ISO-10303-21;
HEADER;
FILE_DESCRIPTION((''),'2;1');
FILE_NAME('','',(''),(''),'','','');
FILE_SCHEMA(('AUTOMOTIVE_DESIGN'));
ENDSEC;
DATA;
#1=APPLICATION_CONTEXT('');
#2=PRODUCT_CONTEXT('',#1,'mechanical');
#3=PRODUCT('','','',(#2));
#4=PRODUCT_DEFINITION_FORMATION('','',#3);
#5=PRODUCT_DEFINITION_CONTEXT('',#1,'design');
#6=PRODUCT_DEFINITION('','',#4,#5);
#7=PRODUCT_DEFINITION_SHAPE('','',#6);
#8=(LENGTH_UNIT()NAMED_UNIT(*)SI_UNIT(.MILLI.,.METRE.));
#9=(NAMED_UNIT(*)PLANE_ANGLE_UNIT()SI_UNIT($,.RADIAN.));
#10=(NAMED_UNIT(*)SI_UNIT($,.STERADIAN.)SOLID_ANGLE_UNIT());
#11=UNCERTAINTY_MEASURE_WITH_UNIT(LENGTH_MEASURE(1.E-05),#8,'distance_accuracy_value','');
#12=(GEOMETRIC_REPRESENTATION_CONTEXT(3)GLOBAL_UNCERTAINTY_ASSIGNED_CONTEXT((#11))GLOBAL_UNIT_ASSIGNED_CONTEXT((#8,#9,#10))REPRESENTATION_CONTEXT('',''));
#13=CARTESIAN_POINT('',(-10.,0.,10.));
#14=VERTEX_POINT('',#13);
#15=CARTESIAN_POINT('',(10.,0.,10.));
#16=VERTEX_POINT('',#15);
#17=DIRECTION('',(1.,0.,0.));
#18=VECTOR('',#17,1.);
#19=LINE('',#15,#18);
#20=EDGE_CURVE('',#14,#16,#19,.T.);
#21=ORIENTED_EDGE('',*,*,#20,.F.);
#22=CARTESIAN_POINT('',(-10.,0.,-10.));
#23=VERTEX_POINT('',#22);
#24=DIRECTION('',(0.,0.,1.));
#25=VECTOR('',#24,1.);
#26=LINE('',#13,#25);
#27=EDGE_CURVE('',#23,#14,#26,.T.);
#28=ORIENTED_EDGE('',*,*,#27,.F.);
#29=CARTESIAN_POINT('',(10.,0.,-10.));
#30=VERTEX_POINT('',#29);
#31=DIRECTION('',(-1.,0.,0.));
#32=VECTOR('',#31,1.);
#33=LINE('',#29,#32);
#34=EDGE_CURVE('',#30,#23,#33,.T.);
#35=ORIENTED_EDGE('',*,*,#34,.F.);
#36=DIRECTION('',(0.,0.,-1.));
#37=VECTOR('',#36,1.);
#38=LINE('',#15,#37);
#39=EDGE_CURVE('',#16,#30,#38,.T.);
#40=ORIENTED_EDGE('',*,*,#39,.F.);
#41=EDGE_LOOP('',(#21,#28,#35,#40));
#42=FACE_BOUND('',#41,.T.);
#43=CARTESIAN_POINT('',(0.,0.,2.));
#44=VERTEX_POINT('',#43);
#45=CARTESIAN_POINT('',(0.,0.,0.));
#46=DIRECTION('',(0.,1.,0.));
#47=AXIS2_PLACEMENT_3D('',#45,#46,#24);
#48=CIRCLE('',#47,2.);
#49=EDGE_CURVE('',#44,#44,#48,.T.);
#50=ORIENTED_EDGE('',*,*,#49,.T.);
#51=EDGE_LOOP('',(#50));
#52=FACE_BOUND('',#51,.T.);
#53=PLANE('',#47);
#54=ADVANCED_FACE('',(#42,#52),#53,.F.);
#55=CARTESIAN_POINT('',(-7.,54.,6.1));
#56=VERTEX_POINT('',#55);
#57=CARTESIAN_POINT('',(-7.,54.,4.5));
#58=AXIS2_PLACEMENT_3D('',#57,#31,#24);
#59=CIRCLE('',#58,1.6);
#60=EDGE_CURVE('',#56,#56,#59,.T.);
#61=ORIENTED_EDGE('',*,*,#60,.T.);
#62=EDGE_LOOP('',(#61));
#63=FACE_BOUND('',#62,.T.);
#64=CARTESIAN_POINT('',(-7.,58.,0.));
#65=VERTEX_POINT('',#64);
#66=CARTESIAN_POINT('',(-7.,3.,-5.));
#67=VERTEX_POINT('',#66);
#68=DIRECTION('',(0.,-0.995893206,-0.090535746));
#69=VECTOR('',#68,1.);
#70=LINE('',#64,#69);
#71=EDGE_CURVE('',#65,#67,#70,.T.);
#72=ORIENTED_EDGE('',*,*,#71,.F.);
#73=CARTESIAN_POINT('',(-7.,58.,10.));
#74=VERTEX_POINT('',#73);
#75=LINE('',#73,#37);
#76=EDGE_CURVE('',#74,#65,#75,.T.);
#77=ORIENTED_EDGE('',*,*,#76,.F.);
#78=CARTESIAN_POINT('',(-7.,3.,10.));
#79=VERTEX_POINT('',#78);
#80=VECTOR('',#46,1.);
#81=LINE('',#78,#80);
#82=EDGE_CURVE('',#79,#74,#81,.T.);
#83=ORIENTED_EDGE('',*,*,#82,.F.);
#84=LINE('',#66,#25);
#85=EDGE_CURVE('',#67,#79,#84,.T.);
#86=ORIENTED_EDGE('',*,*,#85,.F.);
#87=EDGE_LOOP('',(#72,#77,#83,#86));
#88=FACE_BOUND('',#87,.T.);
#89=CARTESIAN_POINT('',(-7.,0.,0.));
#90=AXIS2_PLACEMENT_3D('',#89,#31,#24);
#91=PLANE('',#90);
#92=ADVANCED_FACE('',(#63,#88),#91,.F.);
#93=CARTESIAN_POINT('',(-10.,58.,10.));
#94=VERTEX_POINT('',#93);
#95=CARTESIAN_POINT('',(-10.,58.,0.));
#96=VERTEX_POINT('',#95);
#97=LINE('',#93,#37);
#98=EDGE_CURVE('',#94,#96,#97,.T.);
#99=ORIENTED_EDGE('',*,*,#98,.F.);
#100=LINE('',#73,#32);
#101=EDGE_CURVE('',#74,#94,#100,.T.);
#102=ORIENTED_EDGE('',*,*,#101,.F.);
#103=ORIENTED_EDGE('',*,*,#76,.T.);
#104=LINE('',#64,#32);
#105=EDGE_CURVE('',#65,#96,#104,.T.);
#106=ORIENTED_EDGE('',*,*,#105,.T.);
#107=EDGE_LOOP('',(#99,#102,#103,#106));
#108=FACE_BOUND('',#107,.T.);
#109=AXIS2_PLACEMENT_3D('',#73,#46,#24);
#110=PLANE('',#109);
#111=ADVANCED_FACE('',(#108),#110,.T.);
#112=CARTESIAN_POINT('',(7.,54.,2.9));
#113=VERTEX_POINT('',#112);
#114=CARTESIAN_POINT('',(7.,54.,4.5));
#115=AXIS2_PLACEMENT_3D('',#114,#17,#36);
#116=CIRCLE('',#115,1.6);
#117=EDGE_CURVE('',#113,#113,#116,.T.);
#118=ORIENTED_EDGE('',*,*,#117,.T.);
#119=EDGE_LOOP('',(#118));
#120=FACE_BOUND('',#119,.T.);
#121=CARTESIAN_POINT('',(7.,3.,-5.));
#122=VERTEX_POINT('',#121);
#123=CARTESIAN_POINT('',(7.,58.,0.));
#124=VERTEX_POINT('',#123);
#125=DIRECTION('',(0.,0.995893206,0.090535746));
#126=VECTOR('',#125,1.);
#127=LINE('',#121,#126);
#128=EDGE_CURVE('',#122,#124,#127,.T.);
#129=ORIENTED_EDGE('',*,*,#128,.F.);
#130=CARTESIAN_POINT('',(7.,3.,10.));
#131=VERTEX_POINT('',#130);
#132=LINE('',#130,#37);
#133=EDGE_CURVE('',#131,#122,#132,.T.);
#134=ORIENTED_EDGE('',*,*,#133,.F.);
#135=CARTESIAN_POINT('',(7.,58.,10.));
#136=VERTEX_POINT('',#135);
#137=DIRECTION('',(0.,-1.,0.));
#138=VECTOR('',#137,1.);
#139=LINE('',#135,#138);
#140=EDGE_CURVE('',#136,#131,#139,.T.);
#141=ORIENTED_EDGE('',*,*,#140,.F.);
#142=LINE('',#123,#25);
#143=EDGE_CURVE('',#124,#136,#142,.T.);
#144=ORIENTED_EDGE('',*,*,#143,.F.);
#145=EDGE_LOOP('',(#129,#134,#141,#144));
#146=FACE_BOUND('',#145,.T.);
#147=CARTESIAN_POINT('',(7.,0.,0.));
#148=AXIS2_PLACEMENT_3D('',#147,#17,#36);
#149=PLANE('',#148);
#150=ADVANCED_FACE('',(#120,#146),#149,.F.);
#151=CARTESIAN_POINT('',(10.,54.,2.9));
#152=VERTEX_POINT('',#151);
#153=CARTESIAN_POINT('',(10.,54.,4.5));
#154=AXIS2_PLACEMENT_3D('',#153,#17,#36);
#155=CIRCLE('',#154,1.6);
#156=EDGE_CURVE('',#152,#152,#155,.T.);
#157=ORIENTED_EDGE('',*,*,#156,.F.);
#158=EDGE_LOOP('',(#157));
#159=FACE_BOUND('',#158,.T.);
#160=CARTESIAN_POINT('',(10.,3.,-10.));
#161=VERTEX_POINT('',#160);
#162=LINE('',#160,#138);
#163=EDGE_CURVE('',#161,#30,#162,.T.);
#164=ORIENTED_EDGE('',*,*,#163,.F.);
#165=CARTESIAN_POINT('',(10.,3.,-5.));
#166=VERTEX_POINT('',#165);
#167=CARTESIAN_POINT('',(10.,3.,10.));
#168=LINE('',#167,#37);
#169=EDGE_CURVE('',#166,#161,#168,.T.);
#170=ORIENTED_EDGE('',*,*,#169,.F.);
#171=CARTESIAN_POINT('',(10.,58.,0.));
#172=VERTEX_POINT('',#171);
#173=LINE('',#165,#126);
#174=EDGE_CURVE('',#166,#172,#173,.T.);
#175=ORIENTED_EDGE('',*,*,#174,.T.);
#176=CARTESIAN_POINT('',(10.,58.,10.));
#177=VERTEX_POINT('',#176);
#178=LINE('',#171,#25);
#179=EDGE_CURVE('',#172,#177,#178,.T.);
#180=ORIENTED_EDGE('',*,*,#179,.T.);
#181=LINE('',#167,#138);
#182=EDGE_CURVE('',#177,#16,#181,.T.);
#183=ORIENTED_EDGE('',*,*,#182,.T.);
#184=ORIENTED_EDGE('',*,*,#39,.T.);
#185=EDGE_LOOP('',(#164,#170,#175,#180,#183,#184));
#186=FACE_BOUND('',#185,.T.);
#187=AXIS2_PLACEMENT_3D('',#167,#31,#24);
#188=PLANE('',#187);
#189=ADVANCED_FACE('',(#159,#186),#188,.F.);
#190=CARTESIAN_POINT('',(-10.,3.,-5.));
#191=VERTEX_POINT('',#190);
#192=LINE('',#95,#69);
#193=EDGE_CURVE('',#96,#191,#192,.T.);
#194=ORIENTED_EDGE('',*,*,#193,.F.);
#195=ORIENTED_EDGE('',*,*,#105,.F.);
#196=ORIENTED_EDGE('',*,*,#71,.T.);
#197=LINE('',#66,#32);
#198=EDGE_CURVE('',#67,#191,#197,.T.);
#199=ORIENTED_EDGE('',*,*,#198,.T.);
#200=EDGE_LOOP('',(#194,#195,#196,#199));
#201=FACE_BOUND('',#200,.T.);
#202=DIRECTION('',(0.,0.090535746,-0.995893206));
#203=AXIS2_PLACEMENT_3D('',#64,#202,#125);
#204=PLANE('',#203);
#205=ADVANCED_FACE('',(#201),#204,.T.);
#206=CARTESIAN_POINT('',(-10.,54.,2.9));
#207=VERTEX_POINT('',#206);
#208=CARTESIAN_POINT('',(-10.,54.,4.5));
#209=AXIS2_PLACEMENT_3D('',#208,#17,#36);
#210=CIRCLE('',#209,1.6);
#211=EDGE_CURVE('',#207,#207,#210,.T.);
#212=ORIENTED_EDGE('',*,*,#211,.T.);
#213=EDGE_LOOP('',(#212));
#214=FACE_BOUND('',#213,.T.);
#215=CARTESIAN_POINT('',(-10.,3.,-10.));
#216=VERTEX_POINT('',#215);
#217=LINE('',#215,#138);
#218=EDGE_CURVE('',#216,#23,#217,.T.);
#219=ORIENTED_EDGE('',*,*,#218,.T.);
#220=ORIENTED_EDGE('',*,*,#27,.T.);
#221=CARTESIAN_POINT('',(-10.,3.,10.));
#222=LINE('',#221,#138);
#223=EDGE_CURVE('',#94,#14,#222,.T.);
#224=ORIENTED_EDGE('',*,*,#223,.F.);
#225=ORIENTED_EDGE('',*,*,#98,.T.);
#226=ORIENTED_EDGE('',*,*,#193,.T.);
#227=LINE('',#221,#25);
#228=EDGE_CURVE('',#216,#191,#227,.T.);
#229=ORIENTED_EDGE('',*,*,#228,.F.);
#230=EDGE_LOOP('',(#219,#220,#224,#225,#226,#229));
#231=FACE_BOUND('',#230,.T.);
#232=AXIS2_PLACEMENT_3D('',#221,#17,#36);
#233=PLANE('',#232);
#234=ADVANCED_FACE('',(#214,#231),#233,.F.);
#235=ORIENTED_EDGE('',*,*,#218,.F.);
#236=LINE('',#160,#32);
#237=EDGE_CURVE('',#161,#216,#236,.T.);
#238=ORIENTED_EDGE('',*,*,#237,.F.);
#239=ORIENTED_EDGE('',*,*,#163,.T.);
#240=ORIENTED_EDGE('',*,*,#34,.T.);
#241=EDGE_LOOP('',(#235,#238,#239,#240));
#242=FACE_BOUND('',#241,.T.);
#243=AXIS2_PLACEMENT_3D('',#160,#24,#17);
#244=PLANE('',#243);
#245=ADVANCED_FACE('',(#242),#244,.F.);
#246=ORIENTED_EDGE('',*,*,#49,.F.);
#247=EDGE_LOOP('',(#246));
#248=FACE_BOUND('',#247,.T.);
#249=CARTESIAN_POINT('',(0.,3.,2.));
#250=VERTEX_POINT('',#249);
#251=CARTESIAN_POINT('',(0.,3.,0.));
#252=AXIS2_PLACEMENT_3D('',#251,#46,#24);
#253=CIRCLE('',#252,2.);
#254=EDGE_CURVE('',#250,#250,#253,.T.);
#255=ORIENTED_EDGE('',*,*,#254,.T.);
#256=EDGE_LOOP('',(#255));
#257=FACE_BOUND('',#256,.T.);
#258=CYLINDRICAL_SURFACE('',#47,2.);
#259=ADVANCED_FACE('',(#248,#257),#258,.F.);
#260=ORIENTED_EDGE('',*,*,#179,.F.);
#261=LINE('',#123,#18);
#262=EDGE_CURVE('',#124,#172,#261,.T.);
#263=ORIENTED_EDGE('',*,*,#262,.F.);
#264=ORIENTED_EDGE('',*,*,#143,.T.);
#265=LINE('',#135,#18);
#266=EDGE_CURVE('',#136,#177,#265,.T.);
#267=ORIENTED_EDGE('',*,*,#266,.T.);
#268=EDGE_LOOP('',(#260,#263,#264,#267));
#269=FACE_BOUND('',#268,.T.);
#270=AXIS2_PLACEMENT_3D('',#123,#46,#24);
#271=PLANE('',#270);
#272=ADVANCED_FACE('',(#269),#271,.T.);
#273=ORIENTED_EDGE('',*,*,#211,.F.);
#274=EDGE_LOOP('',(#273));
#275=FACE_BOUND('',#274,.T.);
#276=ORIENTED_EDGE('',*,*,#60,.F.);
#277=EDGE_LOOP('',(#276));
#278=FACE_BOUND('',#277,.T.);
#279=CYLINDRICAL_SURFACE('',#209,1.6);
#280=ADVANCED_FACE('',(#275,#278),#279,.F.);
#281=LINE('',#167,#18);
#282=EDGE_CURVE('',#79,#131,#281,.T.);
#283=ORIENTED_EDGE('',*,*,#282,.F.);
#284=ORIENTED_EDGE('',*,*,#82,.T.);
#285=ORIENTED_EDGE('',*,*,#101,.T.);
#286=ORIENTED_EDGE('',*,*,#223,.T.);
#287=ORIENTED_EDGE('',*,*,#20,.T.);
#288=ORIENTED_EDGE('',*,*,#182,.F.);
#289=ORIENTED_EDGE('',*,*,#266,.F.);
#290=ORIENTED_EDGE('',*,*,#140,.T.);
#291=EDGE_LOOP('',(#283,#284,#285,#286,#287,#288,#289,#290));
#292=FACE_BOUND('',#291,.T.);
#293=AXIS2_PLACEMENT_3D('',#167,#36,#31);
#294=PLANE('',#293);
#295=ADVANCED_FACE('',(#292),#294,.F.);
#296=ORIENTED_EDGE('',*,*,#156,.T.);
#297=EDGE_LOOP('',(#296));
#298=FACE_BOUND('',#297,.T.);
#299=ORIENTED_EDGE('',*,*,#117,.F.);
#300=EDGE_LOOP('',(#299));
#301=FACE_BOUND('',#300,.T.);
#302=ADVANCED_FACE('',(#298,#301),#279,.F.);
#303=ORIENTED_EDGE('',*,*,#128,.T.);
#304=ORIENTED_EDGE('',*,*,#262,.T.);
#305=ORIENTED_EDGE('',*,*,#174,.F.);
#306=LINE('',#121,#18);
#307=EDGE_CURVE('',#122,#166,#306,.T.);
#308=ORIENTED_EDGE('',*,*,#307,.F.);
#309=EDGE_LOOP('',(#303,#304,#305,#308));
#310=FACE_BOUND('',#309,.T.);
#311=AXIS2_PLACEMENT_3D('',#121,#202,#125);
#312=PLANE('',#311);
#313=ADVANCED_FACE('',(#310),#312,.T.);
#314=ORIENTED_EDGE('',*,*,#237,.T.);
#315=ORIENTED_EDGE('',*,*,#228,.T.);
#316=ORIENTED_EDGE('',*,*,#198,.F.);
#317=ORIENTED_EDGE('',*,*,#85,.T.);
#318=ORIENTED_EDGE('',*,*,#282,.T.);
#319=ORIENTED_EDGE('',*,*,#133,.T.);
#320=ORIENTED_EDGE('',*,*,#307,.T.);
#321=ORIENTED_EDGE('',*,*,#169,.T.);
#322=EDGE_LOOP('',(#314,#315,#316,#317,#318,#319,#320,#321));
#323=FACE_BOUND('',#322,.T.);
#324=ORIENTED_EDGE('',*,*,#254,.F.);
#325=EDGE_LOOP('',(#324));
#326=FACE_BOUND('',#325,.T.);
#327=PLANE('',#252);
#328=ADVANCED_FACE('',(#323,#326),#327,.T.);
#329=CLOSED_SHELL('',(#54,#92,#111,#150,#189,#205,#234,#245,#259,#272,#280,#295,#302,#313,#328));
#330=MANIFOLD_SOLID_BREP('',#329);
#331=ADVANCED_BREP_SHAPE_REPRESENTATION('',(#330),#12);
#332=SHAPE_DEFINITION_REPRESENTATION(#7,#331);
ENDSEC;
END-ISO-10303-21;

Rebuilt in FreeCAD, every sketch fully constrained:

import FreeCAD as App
import Part
import Sketcher

doc = App.newDocument("Part")
body = doc.addObject("PartDesign::Body", "Body")

sketch1 = body.newObject("Sketcher::SketchObject", "Sketch")
sketch1.AttachmentSupport = (doc.getObject("XZ_Plane"), [""])
sketch1.MapMode = "FlatFace"
sketch1.addGeometry([
    Part.LineSegment(App.Vector(-10, -10, 0), App.Vector(-10, 10, 0)),
    Part.LineSegment(App.Vector(-10, 10, 0), App.Vector(10, 10, 0)),
    Part.LineSegment(App.Vector(10, 10, 0), App.Vector(10, -10, 0)),
    Part.LineSegment(App.Vector(10, -10, 0), App.Vector(-10, -10, 0)),
], False)
sketch1.addConstraint([
    Sketcher.Constraint("Coincident", 0, 2, 1, 1),
    Sketcher.Constraint("Coincident", 1, 2, 2, 1),
    Sketcher.Constraint("Coincident", 2, 2, 3, 1),
    Sketcher.Constraint("Coincident", 3, 2, 0, 1),
    Sketcher.Constraint("Vertical", 0),
    Sketcher.Constraint("Horizontal", 1),
    Sketcher.Constraint("Vertical", 2),
    Sketcher.Constraint("Horizontal", 3),
    Sketcher.Constraint("Symmetric", 0, 2, 2, 2, -1, 1),
    Sketcher.Constraint("Equal", 3, 0),
    Sketcher.Constraint("DistanceX", 1, 1, 1, 2, 20.0),
])
pad1 = body.newObject("PartDesign::Pad", "Pad")
pad1.Profile = sketch1
pad1.Length = 3
pad1.Reversed = True

sketch2 = body.newObject("Sketcher::SketchObject", "Sketch001")
sketch2.AttachmentSupport = (doc.getObject("YZ_Plane"), [""])
sketch2.MapMode = "FlatFace"
sketch2.AttachmentOffset = App.Placement(App.Vector(0, 0, -10), App.Rotation())
sketch2.addGeometry([
    Part.LineSegment(App.Vector(3, 10, 0), App.Vector(58, 10, 0)),
    Part.LineSegment(App.Vector(58, 10, 0), App.Vector(58, 0, 0)),
    Part.LineSegment(App.Vector(58, 0, 0), App.Vector(3, -5, 0)),
    Part.LineSegment(App.Vector(3, -5, 0), App.Vector(3, 10, 0)),
], False)
sketch2.addConstraint([
    Sketcher.Constraint("Coincident", 0, 2, 1, 1),
    Sketcher.Constraint("Coincident", 1, 2, 2, 1),
    Sketcher.Constraint("Coincident", 2, 2, 3, 1),
    Sketcher.Constraint("Coincident", 3, 2, 0, 1),
    Sketcher.Constraint("Horizontal", 0),
    Sketcher.Constraint("Vertical", 1),
    Sketcher.Constraint("Vertical", 3),
    Sketcher.Constraint("PointOnObject", 1, 2, -1),
    Sketcher.Constraint("DistanceX", 0, 1, 0, 2, 55.0),
    Sketcher.Constraint("DistanceY", 1, 2, 1, 1, 10.0),
    Sketcher.Constraint("DistanceY", 3, 1, 3, 2, 15.0),
    Sketcher.Constraint("DistanceX", -1, 1, 0, 2, 58.0),
])
pad2 = body.newObject("PartDesign::Pad", "Pad001")
pad2.Profile = sketch2
pad2.Length = 3

sketch3 = body.newObject("Sketcher::SketchObject", "Sketch002")
sketch3.AttachmentSupport = (doc.getObject("YZ_Plane"), [""])
sketch3.MapMode = "FlatFace"
sketch3.AttachmentOffset = App.Placement(App.Vector(0, 0, 10), App.Rotation())
sketch3.addGeometry([
    Part.LineSegment(App.Vector(3, 10, 0), App.Vector(3, -5, 0)),
    Part.LineSegment(App.Vector(3, -5, 0), App.Vector(58, 0, 0)),
    Part.LineSegment(App.Vector(58, 0, 0), App.Vector(58, 10, 0)),
    Part.LineSegment(App.Vector(58, 10, 0), App.Vector(3, 10, 0)),
], False)
sketch3.addConstraint([
    Sketcher.Constraint("Coincident", 0, 2, 1, 1),
    Sketcher.Constraint("Coincident", 1, 2, 2, 1),
    Sketcher.Constraint("Coincident", 2, 2, 3, 1),
    Sketcher.Constraint("Coincident", 3, 2, 0, 1),
    Sketcher.Constraint("Vertical", 0),
    Sketcher.Constraint("Vertical", 2),
    Sketcher.Constraint("Horizontal", 3),
    Sketcher.Constraint("PointOnObject", 1, 2, -1),
    Sketcher.Constraint("DistanceX", 3, 2, 3, 1, 55.0),
    Sketcher.Constraint("DistanceY", 0, 2, 0, 1, 15.0),
    Sketcher.Constraint("DistanceY", 2, 1, 2, 2, 10.0),
    Sketcher.Constraint("DistanceX", -1, 1, 0, 2, 3.0),
])
pad3 = body.newObject("PartDesign::Pad", "Pad002")
pad3.Profile = sketch3
pad3.Length = 3
pad3.Reversed = True

sketch4 = body.newObject("Sketcher::SketchObject", "Sketch003")
sketch4.AttachmentSupport = (doc.getObject("YZ_Plane"), [""])
sketch4.MapMode = "FlatFace"
sketch4.AttachmentOffset = App.Placement(App.Vector(0, 0, 10), App.Rotation())
sketch4.addGeometry(Part.Circle(App.Vector(54, 4.5, 0), App.Vector(0, 0, 1), 1.6), False)
sketch4.addConstraint([
    Sketcher.Constraint("Diameter", 0, 3.2),
    Sketcher.Constraint("DistanceX", -1, 1, 0, 3, 54.0),
    Sketcher.Constraint("DistanceY", -1, 1, 0, 3, 4.5),
])
pocket1 = body.newObject("PartDesign::Pocket", "Pocket")
pocket1.Profile = sketch4
pocket1.Type = "ThroughAll"

sketch5 = body.newObject("Sketcher::SketchObject", "Sketch004")
sketch5.AttachmentSupport = (doc.getObject("XZ_Plane"), [""])
sketch5.MapMode = "FlatFace"
sketch5.AttachmentOffset = App.Placement(App.Vector(0, 0, -3), App.Rotation())
sketch5.addGeometry(Part.Circle(App.Vector(0, 0, 0), App.Vector(0, 0, 1), 2), False)
sketch5.addConstraint([
    Sketcher.Constraint("Coincident", 0, 3, -1, 1),
    Sketcher.Constraint("Diameter", 0, 4.0),
])
pocket2 = body.newObject("PartDesign::Pocket", "Pocket001")
pocket2.Profile = sketch5
pocket2.Type = "ThroughAll"
pocket2.Reversed = True

doc.recompute()
